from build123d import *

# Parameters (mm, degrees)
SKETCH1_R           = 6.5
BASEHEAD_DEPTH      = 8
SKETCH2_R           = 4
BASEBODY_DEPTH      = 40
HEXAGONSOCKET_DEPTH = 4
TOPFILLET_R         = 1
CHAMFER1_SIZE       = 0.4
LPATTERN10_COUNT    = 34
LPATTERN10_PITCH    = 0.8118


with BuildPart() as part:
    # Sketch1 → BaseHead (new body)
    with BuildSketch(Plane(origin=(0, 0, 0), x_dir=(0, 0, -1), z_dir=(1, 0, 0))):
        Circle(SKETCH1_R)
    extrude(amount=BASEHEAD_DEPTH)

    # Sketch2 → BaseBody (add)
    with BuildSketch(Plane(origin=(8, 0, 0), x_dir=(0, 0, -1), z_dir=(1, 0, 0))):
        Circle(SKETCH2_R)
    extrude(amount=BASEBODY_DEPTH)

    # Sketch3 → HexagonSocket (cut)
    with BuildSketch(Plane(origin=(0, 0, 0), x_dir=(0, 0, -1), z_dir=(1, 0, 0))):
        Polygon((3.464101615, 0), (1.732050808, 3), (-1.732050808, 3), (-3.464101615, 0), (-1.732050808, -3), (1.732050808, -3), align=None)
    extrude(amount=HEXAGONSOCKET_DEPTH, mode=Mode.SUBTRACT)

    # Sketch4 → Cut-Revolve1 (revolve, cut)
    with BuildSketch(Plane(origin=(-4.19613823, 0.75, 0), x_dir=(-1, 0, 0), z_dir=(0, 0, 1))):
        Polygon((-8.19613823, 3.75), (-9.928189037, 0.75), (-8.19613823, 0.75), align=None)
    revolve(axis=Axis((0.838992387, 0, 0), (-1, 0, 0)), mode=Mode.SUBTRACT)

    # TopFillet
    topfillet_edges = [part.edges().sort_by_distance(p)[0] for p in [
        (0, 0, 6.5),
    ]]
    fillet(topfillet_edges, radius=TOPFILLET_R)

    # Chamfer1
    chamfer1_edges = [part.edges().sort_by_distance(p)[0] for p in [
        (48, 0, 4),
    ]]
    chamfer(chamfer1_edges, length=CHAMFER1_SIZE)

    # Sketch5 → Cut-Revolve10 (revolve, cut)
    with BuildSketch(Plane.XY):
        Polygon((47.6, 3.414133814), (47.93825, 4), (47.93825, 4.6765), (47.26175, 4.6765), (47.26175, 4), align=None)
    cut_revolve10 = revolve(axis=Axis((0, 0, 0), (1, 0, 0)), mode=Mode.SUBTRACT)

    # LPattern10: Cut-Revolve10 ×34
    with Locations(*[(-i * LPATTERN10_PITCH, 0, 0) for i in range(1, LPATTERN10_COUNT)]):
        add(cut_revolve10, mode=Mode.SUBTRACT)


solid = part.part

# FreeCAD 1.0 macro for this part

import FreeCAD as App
import Part
import Sketcher
Q = App.Units.Quantity


def edges_at(feature, points):
    """Names of the edges that pass closest to the given points."""
    edges = feature.Shape.Edges
    near = lambda p: min(range(len(edges)), key=lambda i: edges[i].distToShape(Part.Vertex(*p))[0])
    return sorted({f"Edge{near(p) + 1}" for p in points})

doc = App.newDocument("Part")
params = doc.addObject("Spreadsheet::Sheet", "Params")
for row, (alias, value) in enumerate([
    ("sketch1_diameter", "13 mm"),
    ("pad1_length", "8 mm"),
    ("sketch2_diameter", "8 mm"),
    ("pad2_length", "40 mm"),
    ("pocket1_length", "4 mm"),
    ("sketch4_height", "3 mm"),
    ("groove_angle", "360 deg"),
    ("fillet_radius", "1 mm"),
    ("chamfer_size", "0.4 mm"),
    ("groove2_angle", "360 deg"),
    ("linearpattern_pitch", "0.8118 mm"),
], start=1):
    params.set(f"A{row}", alias)
    params.set(f"B{row}", "=" + value)
    params.setAlias(f"B{row}", alias)

body = doc.addObject("PartDesign::Body", "Body")

sketch1 = body.newObject("Sketcher::SketchObject", "Sketch")
sketch1.AttachmentSupport = (doc.getObject("YZ_Plane"), [""])
sketch1.MapMode = "FlatFace"
sketch1.addGeometry(Part.Circle(App.Vector(0, 0, 0), App.Vector(0, 0, 1), 6), False)
sketch1.addConstraint(Sketcher.Constraint("Coincident", 0, 3, -1, 1))
sketch1.addConstraint(Sketcher.Constraint("Diameter", 0, Q("13 mm")))
sketch1.setExpression("Constraints[1]", "Params.sketch1_diameter")
pad1 = body.newObject("PartDesign::Pad", "Pad")
pad1.Profile = sketch1
pad1.setExpression("Length", "Params.pad1_length")

sketch2 = body.newObject("Sketcher::SketchObject", "Sketch001")
sketch2.AttachmentSupport = (doc.getObject("YZ_Plane"), [""])
sketch2.MapMode = "FlatFace"
sketch2.AttachmentOffset = App.Placement(App.Vector(0, 0, 8), App.Rotation())
sketch2.addGeometry(Part.Circle(App.Vector(0, 0, 0), App.Vector(0, 0, 1), 4), False)
sketch2.addConstraint(Sketcher.Constraint("Coincident", 0, 3, -1, 1))
sketch2.addConstraint(Sketcher.Constraint("Diameter", 0, Q("8 mm")))
sketch2.setExpression("Constraints[1]", "Params.sketch2_diameter")
pad2 = body.newObject("PartDesign::Pad", "Pad001")
pad2.Profile = sketch2
pad2.setExpression("Length", "Params.pad2_length")

sketch3 = body.newObject("Sketcher::SketchObject", "Sketch002")
sketch3.AttachmentSupport = (doc.getObject("YZ_Plane"), [""])
sketch3.MapMode = "FlatFace"
sketch3.addGeometry(Part.LineSegment(App.Vector(0, -3.5, 0), App.Vector(3, -1.7, 0)), False)
sketch3.addGeometry(Part.LineSegment(App.Vector(3, -1.7, 0), App.Vector(3, 1.7, 0)), False)
sketch3.addGeometry(Part.LineSegment(App.Vector(3, 1.7, 0), App.Vector(0, 3.5, 0)), False)
sketch3.addGeometry(Part.LineSegment(App.Vector(0, 3.5, 0), App.Vector(-3, 1.7, 0)), False)
sketch3.addGeometry(Part.LineSegment(App.Vector(-3, 1.7, 0), App.Vector(-3, -1.7, 0)), False)
sketch3.addGeometry(Part.LineSegment(App.Vector(-3, -1.7, 0), App.Vector(0, -3.5, 0)), False)
sketch3.addConstraint(Sketcher.Constraint("Coincident", 0, 2, 1, 1))
sketch3.addConstraint(Sketcher.Constraint("Coincident", 1, 2, 2, 1))
sketch3.addConstraint(Sketcher.Constraint("Coincident", 2, 2, 3, 1))
sketch3.addConstraint(Sketcher.Constraint("Coincident", 3, 2, 4, 1))
sketch3.addConstraint(Sketcher.Constraint("Coincident", 4, 2, 5, 1))
sketch3.addConstraint(Sketcher.Constraint("Coincident", 5, 2, 0, 1))
sketch3.addConstraint(Sketcher.Constraint("Vertical", 1))
sketch3.addConstraint(Sketcher.Constraint("Vertical", 4))
sketch3.addConstraint(Sketcher.Constraint("Symmetric", 0, 2, 3, 2, -1, 1))
sketch3.addConstraint(Sketcher.Constraint("Symmetric", 2, 2, 5, 2, -1, 1))
sketch3.addConstraint(Sketcher.Constraint("PointOnObject", 2, 2, -2))
sketch3.addConstraint(Sketcher.Constraint("Parallel", 2, 5))
sketch3.addConstraint(Sketcher.Constraint("Horizontal", 1, 2, 3, 2))
sketch3.addConstraint(Sketcher.Constraint("Angle", 0, Q("30 deg")))
sketch3.addConstraint(Sketcher.Constraint("DistanceX", -1, 1, 0, 2, Q("3 mm")))
sketch3.addConstraint(Sketcher.Constraint("DistanceY", 1, 1, 1, 2, Q("3.464102 mm")))
pocket1 = body.newObject("PartDesign::Pocket", "Pocket")
pocket1.Profile = sketch3
pocket1.setExpression("Length", "Params.pocket1_length")
pocket1.Reversed = True

sketch4 = body.newObject("Sketcher::SketchObject", "Sketch003")
sketch4.AttachmentSupport = (doc.getObject("XY_Plane"), [""])
sketch4.MapMode = "FlatFace"
sketch4.addGeometry(Part.LineSegment(App.Vector(4, -3, 0), App.Vector(5.7, 0, 0)), False)
sketch4.addGeometry(Part.LineSegment(App.Vector(5.7, 0, 0), App.Vector(4, 0, 0)), False)
sketch4.addGeometry(Part.LineSegment(App.Vector(4, 0, 0), App.Vector(4, -3, 0)), False)
sketch4.addConstraint(Sketcher.Constraint("Coincident", 0, 2, 1, 1))
sketch4.addConstraint(Sketcher.Constraint("Coincident", 1, 2, 2, 1))
sketch4.addConstraint(Sketcher.Constraint("Coincident", 2, 2, 0, 1))
sketch4.addConstraint(Sketcher.Constraint("Horizontal", 1))
sketch4.addConstraint(Sketcher.Constraint("Vertical", 2))
sketch4.addConstraint(Sketcher.Constraint("PointOnObject", 0, 2, -1))
sketch4.addConstraint(Sketcher.Constraint("DistanceY", 2, 2, 2, 1, Q("3 mm")))
sketch4.addConstraint(Sketcher.Constraint("Angle", 0, Q("60 deg")))
sketch4.addConstraint(Sketcher.Constraint("DistanceX", -1, 1, 1, 2, Q("4 mm")))
sketch4.setExpression("Constraints[6]", "Params.sketch4_height")
groove = body.newObject("PartDesign::Groove", "Groove")
groove.Profile = sketch4
groove.ReferenceAxis = (sketch4, ["H_Axis"])
groove.setExpression("Angle", "Params.groove_angle")
doc.recompute()

fillet = body.newObject("PartDesign::Fillet", "Fillet")
fillet.Base = (groove, edges_at(groove, [(0, 0, 6.5)]))
fillet.setExpression("Radius", "Params.fillet_radius")
doc.recompute()

chamfer = body.newObject("PartDesign::Chamfer", "Chamfer")
chamfer.Base = (fillet, edges_at(fillet, [(48, 0, 4)]))
chamfer.setExpression("Size", "Params.chamfer_size")

sketch5 = body.newObject("Sketcher::SketchObject", "Sketch004")
sketch5.AttachmentSupport = (doc.getObject("XY_Plane"), [""])
sketch5.MapMode = "FlatFace"
sketch5.addGeometry(Part.LineSegment(App.Vector(47.6, 3.4, 0), App.Vector(47.9, 4, 0)), False)
sketch5.addGeometry(Part.LineSegment(App.Vector(47.9, 4, 0), App.Vector(47.9, 4.7, 0)), False)
sketch5.addGeometry(Part.LineSegment(App.Vector(47.9, 4.7, 0), App.Vector(47.3, 4.7, 0)), False)
sketch5.addGeometry(Part.LineSegment(App.Vector(47.3, 4.7, 0), App.Vector(47.3, 4, 0)), False)
sketch5.addGeometry(Part.LineSegment(App.Vector(47.3, 4, 0), App.Vector(47.6, 3.4, 0)), False)
sketch5.addConstraint(Sketcher.Constraint("Coincident", 0, 2, 1, 1))
sketch5.addConstraint(Sketcher.Constraint("Coincident", 1, 2, 2, 1))
sketch5.addConstraint(Sketcher.Constraint("Coincident", 2, 2, 3, 1))
sketch5.addConstraint(Sketcher.Constraint("Coincident", 3, 2, 4, 1))
sketch5.addConstraint(Sketcher.Constraint("Coincident", 4, 2, 0, 1))
sketch5.addConstraint(Sketcher.Constraint("Vertical", 1))
sketch5.addConstraint(Sketcher.Constraint("Horizontal", 2))
sketch5.addConstraint(Sketcher.Constraint("Vertical", 3))
sketch5.addConstraint(Sketcher.Constraint("Horizontal", 0, 2, 3, 2))
sketch5.addConstraint(Sketcher.Constraint("Equal", 2, 1))
sketch5.addConstraint(Sketcher.Constraint("Equal", 0, 4))
sketch5.addConstraint(Sketcher.Constraint("Angle", 0, Q("60 deg")))
sketch5.addConstraint(Sketcher.Constraint("DistanceY", -1, 1, 0, 2, Q("4 mm")))
sketch5.addConstraint(Sketcher.Constraint("DistanceX", -1, 1, 4, 2, Q("47.6 mm")))
sketch5.addConstraint(Sketcher.Constraint("DistanceX", 2, 2, 2, 1, Q("0.6765 mm")))
groove2 = body.newObject("PartDesign::Groove", "Groove001")
groove2.Profile = sketch5
groove2.ReferenceAxis = (sketch5, ["H_Axis"])
groove2.setExpression("Angle", "Params.groove2_angle")
doc.recompute()

linearpattern = body.newObject("PartDesign::LinearPattern", "LinearPattern")
linearpattern.Originals = [groove2]
linearpattern.Direction = (doc.getObject("X_Axis"), [""])
linearpattern.Mode = "offset"
linearpattern.setExpression("Offset", "Params.linearpattern_pitch")
linearpattern.Occurrences = 34
linearpattern.Reversed = True
body.Tip = linearpattern

doc.recompute()
